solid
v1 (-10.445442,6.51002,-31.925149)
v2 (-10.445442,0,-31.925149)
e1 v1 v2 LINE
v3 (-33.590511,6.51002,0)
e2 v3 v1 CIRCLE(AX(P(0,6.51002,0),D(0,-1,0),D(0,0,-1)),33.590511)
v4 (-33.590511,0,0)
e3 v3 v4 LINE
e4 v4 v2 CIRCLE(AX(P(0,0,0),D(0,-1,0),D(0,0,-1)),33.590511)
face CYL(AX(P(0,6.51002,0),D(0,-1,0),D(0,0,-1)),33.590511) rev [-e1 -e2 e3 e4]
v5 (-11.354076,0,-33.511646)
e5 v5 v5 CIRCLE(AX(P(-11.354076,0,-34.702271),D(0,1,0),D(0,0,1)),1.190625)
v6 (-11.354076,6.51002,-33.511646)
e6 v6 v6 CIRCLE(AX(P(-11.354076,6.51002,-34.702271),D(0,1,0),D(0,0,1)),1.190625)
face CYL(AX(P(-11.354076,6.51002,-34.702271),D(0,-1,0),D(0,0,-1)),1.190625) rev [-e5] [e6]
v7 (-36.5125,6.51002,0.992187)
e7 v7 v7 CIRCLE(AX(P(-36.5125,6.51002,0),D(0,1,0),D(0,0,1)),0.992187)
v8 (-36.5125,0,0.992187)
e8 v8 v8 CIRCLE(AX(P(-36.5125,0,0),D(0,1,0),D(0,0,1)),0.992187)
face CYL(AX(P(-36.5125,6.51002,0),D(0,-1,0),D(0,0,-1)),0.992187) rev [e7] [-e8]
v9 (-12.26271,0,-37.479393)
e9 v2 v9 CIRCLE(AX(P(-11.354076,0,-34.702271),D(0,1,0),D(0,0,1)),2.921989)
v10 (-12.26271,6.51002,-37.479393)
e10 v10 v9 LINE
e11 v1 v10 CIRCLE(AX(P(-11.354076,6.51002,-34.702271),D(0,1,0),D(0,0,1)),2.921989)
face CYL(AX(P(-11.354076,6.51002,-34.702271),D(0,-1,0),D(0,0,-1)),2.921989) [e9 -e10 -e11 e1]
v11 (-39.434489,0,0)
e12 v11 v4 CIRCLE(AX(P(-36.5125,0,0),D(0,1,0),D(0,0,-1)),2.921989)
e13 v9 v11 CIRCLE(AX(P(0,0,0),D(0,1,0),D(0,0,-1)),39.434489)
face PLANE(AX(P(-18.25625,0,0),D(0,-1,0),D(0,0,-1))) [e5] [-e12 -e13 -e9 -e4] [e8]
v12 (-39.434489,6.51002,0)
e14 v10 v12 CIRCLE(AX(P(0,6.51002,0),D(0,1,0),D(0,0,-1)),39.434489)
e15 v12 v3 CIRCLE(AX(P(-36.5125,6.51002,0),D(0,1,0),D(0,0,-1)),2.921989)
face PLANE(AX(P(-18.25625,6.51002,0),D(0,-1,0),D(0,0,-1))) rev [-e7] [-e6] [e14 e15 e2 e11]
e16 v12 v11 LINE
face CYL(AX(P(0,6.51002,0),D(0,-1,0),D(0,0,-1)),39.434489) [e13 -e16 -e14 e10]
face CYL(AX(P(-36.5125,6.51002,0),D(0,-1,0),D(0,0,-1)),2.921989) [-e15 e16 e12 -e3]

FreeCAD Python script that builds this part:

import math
import FreeCAD as App
import Part
import Sketcher
Q = App.Units.Quantity

doc = App.newDocument("Part")
params = doc.addObject("Spreadsheet::Sheet", "Params")
for row, (alias, value) in enumerate([
    ("sketch1_diameter", "0.078125 in"),
    ("sketch1_diameter2", "0.09375 in"),
    ("pad1_length", "0.2563 in"),
], start=1):
    params.set(f"A{row}", alias)
    params.set(f"B{row}", "=" + value)
    params.setAlias(f"B{row}", alias)

body = doc.addObject("PartDesign::Body", "Body")

sketch1 = body.newObject("Sketcher::SketchObject", "Sketch")
sketch1.AttachmentSupport = (doc.getObject("XZ_Plane"), [""])
sketch1.MapMode = "FlatFace"
sketch1.addGeometry(Part.ArcOfCircle(Part.Circle(App.Vector(0, 0, 0), App.Vector(0, 0, 1), 33.590511), math.radians(-180), math.radians(-108.11734)), False)
sketch1.addGeometry(Part.ArcOfCircle(Part.Circle(App.Vector(-11.354076, -34.702271, 0), App.Vector(0, 0, 1), 2.921989), math.radians(-108.11734), math.radians(71.88266)), False)
sketch1.addGeometry(Part.ArcOfCircle(Part.Circle(App.Vector(0, 0, 0), App.Vector(0, 0, 1), 39.434489), math.radians(180), math.radians(251.88266)), False)
sketch1.addGeometry(Part.ArcOfCircle(Part.Circle(App.Vector(-36.5125, 0, 0), App.Vector(0, 0, 1), 2.921989), math.radians(0), math.radians(180)), False)
sketch1.addGeometry(Part.Circle(App.Vector(-36.5125, 0, 0), App.Vector(0, 0, 1), 0.992188), False)
sketch1.addGeometry(Part.Circle(App.Vector(-11.354076, -34.702271, 0), App.Vector(0, 0, 1), 1.190625), False)
sketch1.addConstraint(Sketcher.Constraint("Tangent", 0, 2, 1, 2))
sketch1.addConstraint(Sketcher.Constraint("Tangent", 1, 1, 2, 2))
sketch1.addConstraint(Sketcher.Constraint("Tangent", 2, 1, 3, 2))
sketch1.addConstraint(Sketcher.Constraint("Tangent", 3, 1, 0, 1))
sketch1.addConstraint(Sketcher.Constraint("Coincident", 0, 3, -1, 1))
sketch1.addConstraint(Sketcher.Constraint("Coincident", 2, 3, -1, 1))
sketch1.addConstraint(Sketcher.Constraint("Coincident", 4, 3, 3, 3))
sketch1.addConstraint(Sketcher.Constraint("Coincident", 5, 3, 1, 3))
sketch1.addConstraint(Sketcher.Constraint("PointOnObject", 3, 3, -1))
sketch1.addConstraint(Sketcher.Constraint("Diameter", 4, Q("0.078125 in")))
sketch1.addConstraint(Sketcher.Constraint("Diameter", 5, Q("0.09375 in")))
sketch1.addConstraint(Sketcher.Constraint("DistanceX", 3, 3, -1, 1, Q("1.4375 in")))
sketch1.addConstraint(Sketcher.Constraint("Radius", 0, Q("33.590511 mm")))
sketch1.addConstraint(Sketcher.Constraint("DistanceY", 1, 3, -1, 1, Q("34.702271 mm")))
sketch1.setExpression("Constraints[9]", "Params.sketch1_diameter")
sketch1.setExpression("Constraints[10]", "Params.sketch1_diameter2")
pad1 = body.newObject("PartDesign::Pad", "Pad")
pad1.Profile = sketch1
pad1.setExpression("Length", "Params.pad1_length")
pad1.Reversed = True

doc.recompute()
